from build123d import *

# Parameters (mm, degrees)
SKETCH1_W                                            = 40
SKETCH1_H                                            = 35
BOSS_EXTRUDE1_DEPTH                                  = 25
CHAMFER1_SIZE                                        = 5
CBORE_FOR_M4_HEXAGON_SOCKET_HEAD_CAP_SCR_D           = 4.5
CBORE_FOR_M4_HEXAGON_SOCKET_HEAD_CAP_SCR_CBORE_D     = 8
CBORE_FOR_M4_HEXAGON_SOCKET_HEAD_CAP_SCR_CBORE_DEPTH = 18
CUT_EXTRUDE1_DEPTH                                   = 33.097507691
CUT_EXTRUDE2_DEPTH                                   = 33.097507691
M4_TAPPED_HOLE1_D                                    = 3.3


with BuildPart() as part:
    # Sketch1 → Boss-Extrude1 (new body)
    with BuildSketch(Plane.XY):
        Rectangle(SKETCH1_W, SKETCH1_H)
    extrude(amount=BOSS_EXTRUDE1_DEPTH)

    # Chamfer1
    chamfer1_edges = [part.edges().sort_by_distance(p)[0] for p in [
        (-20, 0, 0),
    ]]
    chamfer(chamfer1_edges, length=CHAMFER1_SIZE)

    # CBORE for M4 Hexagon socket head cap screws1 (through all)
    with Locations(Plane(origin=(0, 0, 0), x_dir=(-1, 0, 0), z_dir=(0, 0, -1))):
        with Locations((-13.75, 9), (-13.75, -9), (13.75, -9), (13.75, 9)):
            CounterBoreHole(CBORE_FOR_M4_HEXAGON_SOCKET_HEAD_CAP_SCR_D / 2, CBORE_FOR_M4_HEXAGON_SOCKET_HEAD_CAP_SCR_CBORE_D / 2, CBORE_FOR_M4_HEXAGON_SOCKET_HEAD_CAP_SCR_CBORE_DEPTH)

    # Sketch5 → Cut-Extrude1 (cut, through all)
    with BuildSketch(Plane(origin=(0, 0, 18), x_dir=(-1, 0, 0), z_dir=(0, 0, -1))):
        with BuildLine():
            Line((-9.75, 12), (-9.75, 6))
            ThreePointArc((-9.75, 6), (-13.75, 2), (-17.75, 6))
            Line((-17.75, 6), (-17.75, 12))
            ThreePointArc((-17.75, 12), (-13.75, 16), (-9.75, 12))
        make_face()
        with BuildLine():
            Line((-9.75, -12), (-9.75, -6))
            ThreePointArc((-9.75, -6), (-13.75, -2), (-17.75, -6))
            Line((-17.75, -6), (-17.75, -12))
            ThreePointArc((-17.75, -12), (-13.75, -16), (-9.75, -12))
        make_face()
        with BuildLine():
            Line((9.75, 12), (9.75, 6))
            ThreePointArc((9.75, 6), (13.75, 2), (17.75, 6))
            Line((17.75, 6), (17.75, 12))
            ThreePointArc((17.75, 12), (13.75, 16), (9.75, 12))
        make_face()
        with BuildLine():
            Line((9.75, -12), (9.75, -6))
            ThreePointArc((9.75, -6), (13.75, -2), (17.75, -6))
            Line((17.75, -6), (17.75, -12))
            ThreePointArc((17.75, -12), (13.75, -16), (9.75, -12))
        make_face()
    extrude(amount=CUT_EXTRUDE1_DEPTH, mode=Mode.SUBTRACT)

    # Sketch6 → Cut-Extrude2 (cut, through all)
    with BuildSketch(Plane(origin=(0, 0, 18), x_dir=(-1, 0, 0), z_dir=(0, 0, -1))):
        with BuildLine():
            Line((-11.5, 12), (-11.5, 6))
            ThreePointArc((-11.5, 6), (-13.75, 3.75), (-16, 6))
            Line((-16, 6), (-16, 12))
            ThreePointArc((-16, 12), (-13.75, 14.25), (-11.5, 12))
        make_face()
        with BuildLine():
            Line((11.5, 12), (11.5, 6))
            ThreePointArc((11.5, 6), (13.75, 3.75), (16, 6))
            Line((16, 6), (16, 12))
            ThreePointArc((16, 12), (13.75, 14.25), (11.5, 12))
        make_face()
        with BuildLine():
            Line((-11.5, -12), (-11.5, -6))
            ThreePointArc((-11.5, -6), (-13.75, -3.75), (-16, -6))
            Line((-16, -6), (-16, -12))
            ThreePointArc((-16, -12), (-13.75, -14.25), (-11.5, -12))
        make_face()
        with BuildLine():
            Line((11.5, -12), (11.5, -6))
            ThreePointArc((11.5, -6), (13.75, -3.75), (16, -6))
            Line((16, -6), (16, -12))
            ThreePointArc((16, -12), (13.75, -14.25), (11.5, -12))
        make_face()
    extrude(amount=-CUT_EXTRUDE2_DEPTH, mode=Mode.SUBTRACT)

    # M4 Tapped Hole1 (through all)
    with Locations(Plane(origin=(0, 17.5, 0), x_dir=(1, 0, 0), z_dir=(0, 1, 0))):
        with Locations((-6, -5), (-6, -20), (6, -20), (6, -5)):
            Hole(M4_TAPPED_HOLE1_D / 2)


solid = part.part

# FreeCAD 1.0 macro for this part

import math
import FreeCAD as App
import Part
import Sketcher
from FreeCAD import Vector
Q = App.Units.Quantity


def edges_at(feature, points):
    """Names of the edges that pass closest to the given points."""
    edges = feature.Shape.Edges
    near = lambda p: min(range(len(edges)), key=lambda i: edges[i].distToShape(Part.Vertex(*p))[0])
    return sorted({f"Edge{near(p) + 1}" for p in points})

doc = App.newDocument("Part")
body = doc.addObject("PartDesign::Body", "Body")

# Sketch on XY plane
sketch1 = body.newObject("Sketcher::SketchObject", "Sketch")
sketch1.AttachmentSupport = (doc.getObject("XY_Plane"), [""])
sketch1.MapMode = "FlatFace"
sketch1.addGeometry([
    Part.LineSegment(Vector(-20, 18, 0), Vector(-20, -18, 0)),
    Part.LineSegment(Vector(-20, -18, 0), Vector(20, -18, 0)),
    Part.LineSegment(Vector(20, -18, 0), Vector(20, 18, 0)),
    Part.LineSegment(Vector(20, 18, 0), Vector(-20, 18, 0)),
], False)
sketch1.addConstraint([
    Sketcher.Constraint("Coincident", 0, 2, 1, 1),
    Sketcher.Constraint("Coincident", 1, 2, 2, 1),
    Sketcher.Constraint("Coincident", 2, 2, 3, 1),
    Sketcher.Constraint("Coincident", 3, 2, 0, 1),
    Sketcher.Constraint("Vertical", 0),
    Sketcher.Constraint("Horizontal", 1),
    Sketcher.Constraint("Vertical", 2),
    Sketcher.Constraint("Horizontal", 3),
    Sketcher.Constraint("Symmetric", 0, 2, 2, 2, -1, 1),
    Sketcher.Constraint("DistanceX", 1, 1, 1, 2, Q("40 mm")),
    Sketcher.Constraint("DistanceY", 0, 2, 0, 1, Q("35 mm")),
])
pad1 = body.newObject("PartDesign::Pad", "Pad")
pad1.Profile = sketch1
pad1.Length = 25
doc.recompute()

chamfer = body.newObject("PartDesign::Chamfer", "Chamfer")
chamfer.Base = (pad1, edges_at(pad1, [(-20, 0, 0)]))
chamfer.Size = 5

# Sketch on XY plane
sketch2 = body.newObject("Sketcher::SketchObject", "Sketch001")
sketch2.AttachmentSupport = (doc.getObject("XY_Plane"), [""])
sketch2.MapMode = "FlatFace"
sketch2.addGeometry([
    Part.Circle(Vector(13.8, 9, 0), Vector(0, 0, 1), 2.2),
    Part.Circle(Vector(13.8, -9, 0), Vector(0, 0, 1), 2.2),
    Part.Circle(Vector(-13.8, -9, 0), Vector(0, 0, 1), 2.2),
    Part.Circle(Vector(-13.8, 9, 0), Vector(0, 0, 1), 2.2),
], False)
sketch2.addConstraint([
    Sketcher.Constraint("Equal", 0, 1),
    Sketcher.Constraint("Equal", 1, 2),
    Sketcher.Constraint("Equal", 2, 3),
    Sketcher.Constraint("Symmetric", 0, 3, 2, 3, -1, 1),
    Sketcher.Constraint("Symmetric", 1, 3, 3, 3, -1, 1),
    Sketcher.Constraint("Symmetric", 1, 3, 2, 3, -2),
    Sketcher.Constraint("Diameter", 0, Q("4.5 mm")),
    Sketcher.Constraint("DistanceY", -1, 1, 0, 3, Q("9 mm")),
    Sketcher.Constraint("DistanceX", 2, 3, 1, 3, Q("27.5 mm")),
])
doc.recompute()
hole = body.newObject("PartDesign::Hole", "Hole")
hole.Profile = sketch2
hole.ThreadType = "None"
hole.Diameter = 4.5
hole.DepthType = "ThroughAll"
hole.HoleCutType = "Counterbore"
hole.HoleCutDiameter = 8
hole.HoleCutDepth = 18
hole.Reversed = True

# Sketch on XY plane
sketch3 = body.newObject("Sketcher::SketchObject", "Sketch002")
sketch3.AttachmentSupport = (doc.getObject("XY_Plane"), [""])
sketch3.MapMode = "FlatFace"
sketch3.AttachmentOffset = App.Placement(Vector(0, 0, 18), App.Rotation())
sketch3.addGeometry([
    Part.LineSegment(Vector(9.8, 6, 0), Vector(9.8, 12, 0)),  # 0
    Part.ArcOfCircle(Part.Circle(Vector(13.8, 12, 0), Vector(0, 0, 1), 4), math.radians(0), math.radians(180)),  # 1
    Part.LineSegment(Vector(17.8, 12, 0), Vector(17.8, 6, 0)),  # 2
    Part.ArcOfCircle(Part.Circle(Vector(13.8, 6, 0), Vector(0, 0, 1), 4), math.radians(180), math.radians(360)),  # 3
    Part.LineSegment(Vector(9.8, -12, 0), Vector(9.8, -6, 0)),  # 4
    Part.ArcOfCircle(Part.Circle(Vector(13.8, -6, 0), Vector(0, 0, 1), 4), math.radians(0), math.radians(180)),  # 5
    Part.LineSegment(Vector(17.8, -6, 0), Vector(17.8, -12, 0)),  # 6
    Part.ArcOfCircle(Part.Circle(Vector(13.8, -12, 0), Vector(0, 0, 1), 4), math.radians(180), math.radians(360)),  # 7
    Part.LineSegment(Vector(-9.8, 12, 0), Vector(-9.8, 6, 0)),  # 8
    Part.ArcOfCircle(Part.Circle(Vector(-13.8, 6, 0), Vector(0, 0, 1), 4), math.radians(180), math.radians(360)),  # 9
    Part.LineSegment(Vector(-17.8, 6, 0), Vector(-17.8, 12, 0)),  # 10
    Part.ArcOfCircle(Part.Circle(Vector(-13.8, 12, 0), Vector(0, 0, 1), 4), math.radians(0), math.radians(180)),  # 11
    Part.LineSegment(Vector(-9.8, -6, 0), Vector(-9.8, -12, 0)),  # 12
    Part.ArcOfCircle(Part.Circle(Vector(-13.8, -12, 0), Vector(0, 0, 1), 4), math.radians(180), math.radians(360)),  # 13
    Part.LineSegment(Vector(-17.8, -12, 0), Vector(-17.8, -6, 0)),  # 14
    Part.ArcOfCircle(Part.Circle(Vector(-13.8, -6, 0), Vector(0, 0, 1), 4), math.radians(0), math.radians(180)),  # 15
], False)
sketch3.addConstraint([
    Sketcher.Constraint("Tangent", 0, 2, 1, 2),
    Sketcher.Constraint("Tangent", 1, 1, 2, 1),
    Sketcher.Constraint("Tangent", 2, 2, 3, 2),
    Sketcher.Constraint("Tangent", 3, 1, 0, 1),
    Sketcher.Constraint("Tangent", 4, 2, 5, 2),
    Sketcher.Constraint("Tangent", 5, 1, 6, 1),
    Sketcher.Constraint("Tangent", 6, 2, 7, 2),
    Sketcher.Constraint("Tangent", 7, 1, 4, 1),
    Sketcher.Constraint("Tangent", 8, 2, 9, 2),
    Sketcher.Constraint("Tangent", 9, 1, 10, 1),
    Sketcher.Constraint("Tangent", 10, 2, 11, 2),
    Sketcher.Constraint("Tangent", 11, 1, 8, 1),
    Sketcher.Constraint("Tangent", 12, 2, 13, 2),
    Sketcher.Constraint("Tangent", 13, 1, 14, 1),
    Sketcher.Constraint("Tangent", 14, 2, 15, 2),
    Sketcher.Constraint("Tangent", 15, 1, 12, 1),
    Sketcher.Constraint("Vertical", 0),
    Sketcher.Constraint("Vertical", 2),
    Sketcher.Constraint("Vertical", 4),
    Sketcher.Constraint("Vertical", 6),
    Sketcher.Constraint("Vertical", 8),
    Sketcher.Constraint("Vertical", 10),
    Sketcher.Constraint("Vertical", 12),
    Sketcher.Constraint("Vertical", 14),
    Sketcher.Constraint("Equal", 3, 5),
    Sketcher.Constraint("Equal", 7, 9),
    Sketcher.Constraint("Equal", 11, 13),
    Sketcher.Constraint("Symmetric", 5, 3, 9, 3, -1, 1),
    Sketcher.Constraint("Symmetric", 1, 3, 13, 3, -1, 1),
    Sketcher.Constraint("Symmetric", 3, 3, 9, 3, -2),
    Sketcher.Constraint("Horizontal", 1, 3, 11, 3),
    Sketcher.Constraint("Horizontal", 7, 3, 13, 3),
    Sketcher.Constraint("Horizontal", 5, 3, 15, 3),
    Sketcher.Constraint("Radius", 1, Q("4 mm")),
    Sketcher.Constraint("DistanceY", 0, 1, 0, 2, Q("6 mm")),
    Sketcher.Constraint("DistanceY", -1, 1, 1, 3, Q("12 mm")),
    Sketcher.Constraint("DistanceX", 9, 3, 3, 3, Q("27.5 mm")),
])
pocket1 = body.newObject("PartDesign::Pocket", "Pocket")
pocket1.Profile = sketch3
pocket1.Type = "ThroughAll"

# Sketch on XY plane
sketch4 = body.newObject("Sketcher::SketchObject", "Sketch003")
sketch4.AttachmentSupport = (doc.getObject("XY_Plane"), [""])
sketch4.MapMode = "FlatFace"
sketch4.AttachmentOffset = App.Placement(Vector(0, 0, 18), App.Rotation())
sketch4.addGeometry([
    Part.LineSegment(Vector(11.5, 6, 0), Vector(11.5, 12, 0)),  # 0
    Part.ArcOfCircle(Part.Circle(Vector(13.8, 12, 0), Vector(0, 0, 1), 2.2), math.radians(0), math.radians(180)),  # 1
    Part.LineSegment(Vector(16, 12, 0), Vector(16, 6, 0)),  # 2
    Part.ArcOfCircle(Part.Circle(Vector(13.8, 6, 0), Vector(0, 0, 1), 2.2), math.radians(180), math.radians(360)),  # 3
    Part.LineSegment(Vector(-11.5, 12, 0), Vector(-11.5, 6, 0)),  # 4
    Part.ArcOfCircle(Part.Circle(Vector(-13.8, 6, 0), Vector(0, 0, 1), 2.2), math.radians(180), math.radians(360)),  # 5
    Part.LineSegment(Vector(-16, 6, 0), Vector(-16, 12, 0)),  # 6
    Part.ArcOfCircle(Part.Circle(Vector(-13.8, 12, 0), Vector(0, 0, 1), 2.2), math.radians(0), math.radians(180)),  # 7
    Part.LineSegment(Vector(11.5, -12, 0), Vector(11.5, -6, 0)),  # 8
    Part.ArcOfCircle(Part.Circle(Vector(13.8, -6, 0), Vector(0, 0, 1), 2.2), math.radians(0), math.radians(180)),  # 9
    Part.LineSegment(Vector(16, -6, 0), Vector(16, -12, 0)),  # 10
    Part.ArcOfCircle(Part.Circle(Vector(13.8, -12, 0), Vector(0, 0, 1), 2.2), math.radians(180), math.radians(360)),  # 11
    Part.LineSegment(Vector(-11.5, -6, 0), Vector(-11.5, -12, 0)),  # 12
    Part.ArcOfCircle(Part.Circle(Vector(-13.8, -12, 0), Vector(0, 0, 1), 2.2), math.radians(180), math.radians(360)),  # 13
    Part.LineSegment(Vector(-16, -12, 0), Vector(-16, -6, 0)),  # 14
    Part.ArcOfCircle(Part.Circle(Vector(-13.8, -6, 0), Vector(0, 0, 1), 2.2), math.radians(0), math.radians(180)),  # 15
], False)
sketch4.addConstraint([
    Sketcher.Constraint("Tangent", 0, 2, 1, 2),
    Sketcher.Constraint("Tangent", 1, 1, 2, 1),
    Sketcher.Constraint("Tangent", 2, 2, 3, 2),
    Sketcher.Constraint("Tangent", 3, 1, 0, 1),
    Sketcher.Constraint("Tangent", 4, 2, 5, 2),
    Sketcher.Constraint("Tangent", 5, 1, 6, 1),
    Sketcher.Constraint("Tangent", 6, 2, 7, 2),
    Sketcher.Constraint("Tangent", 7, 1, 4, 1),
    Sketcher.Constraint("Tangent", 8, 2, 9, 2),
    Sketcher.Constraint("Tangent", 9, 1, 10, 1),
    Sketcher.Constraint("Tangent", 10, 2, 11, 2),
    Sketcher.Constraint("Tangent", 11, 1, 8, 1),
    Sketcher.Constraint("Tangent", 12, 2, 13, 2),
    Sketcher.Constraint("Tangent", 13, 1, 14, 1),
    Sketcher.Constraint("Tangent", 14, 2, 15, 2),
    Sketcher.Constraint("Tangent", 15, 1, 12, 1),
    Sketcher.Constraint("Vertical", 0),
    Sketcher.Constraint("Vertical", 2),
    Sketcher.Constraint("Vertical", 4),
    Sketcher.Constraint("Vertical", 6),
    Sketcher.Constraint("Vertical", 8),
    Sketcher.Constraint("Vertical", 10),
    Sketcher.Constraint("Vertical", 12),
    Sketcher.Constraint("Vertical", 14),
    Sketcher.Constraint("Equal", 3, 5),
    Sketcher.Constraint("Equal", 7, 9),
    Sketcher.Constraint("Equal", 11, 13),
    Sketcher.Constraint("Symmetric", 5, 3, 9, 3, -1, 1),
    Sketcher.Constraint("Symmetric", 1, 3, 13, 3, -1, 1),
    Sketcher.Constraint("Symmetric", 3, 3, 5, 3, -2),
    Sketcher.Constraint("Horizontal", 1, 3, 7, 3),
    Sketcher.Constraint("Horizontal", 11, 3, 13, 3),
    Sketcher.Constraint("Horizontal", 9, 3, 15, 3),
    Sketcher.Constraint("DistanceY", 0, 1, 0, 2, Q("6 mm")),
    Sketcher.Constraint("Radius", 1, Q("2.25 mm")),
    Sketcher.Constraint("DistanceY", -1, 1, 1, 3, Q("12 mm")),
    Sketcher.Constraint("DistanceX", -1, 1, 1, 1, Q("16 mm")),
])
pocket2 = body.newObject("PartDesign::Pocket", "Pocket001")
pocket2.Profile = sketch4
pocket2.Type = "ThroughAll"
pocket2.Reversed = True

# Sketch on XZ plane
sketch5 = body.newObject("Sketcher::SketchObject", "Sketch004")
sketch5.AttachmentSupport = (doc.getObject("XZ_Plane"), [""])
sketch5.MapMode = "FlatFace"
sketch5.AttachmentOffset = App.Placement(Vector(0, 0, -17.5), App.Rotation())
sketch5.addGeometry([
    Part.Circle(Vector(-6, 5, 0), Vector(0, 0, 1), 1.6),
    Part.Circle(Vector(-6, 20, 0), Vector(0, 0, 1), 1.6),
    Part.Circle(Vector(6, 20, 0), Vector(0, 0, 1), 1.6),
    Part.Circle(Vector(6, 5, 0), Vector(0, 0, 1), 1.6),
], False)
sketch5.addConstraint([
    Sketcher.Constraint("Equal", 0, 1),
    Sketcher.Constraint("Equal", 1, 2),
    Sketcher.Constraint("Equal", 2, 3),
    Sketcher.Constraint("Symmetric", 1, 3, 2, 3, -2),
    Sketcher.Constraint("Symmetric", 0, 3, 3, 3, -2),
    Sketcher.Constraint("Vertical", 0, 3, 1, 3),
    Sketcher.Constraint("Diameter", 0, Q("3.3 mm")),
    Sketcher.Constraint("DistanceX", 0, 3, -1, 1, Q("6 mm")),
    Sketcher.Constraint("DistanceY", -1, 1, 0, 3, Q("5 mm")),
    Sketcher.Constraint("DistanceY", -1, 1, 1, 3, Q("20 mm")),
])
doc.recompute()
hole2 = body.newObject("PartDesign::Hole", "Hole001")
hole2.Profile = sketch5
hole2.ThreadType = "None"
hole2.Diameter = 3.3
hole2.DepthType = "ThroughAll"
hole2.Reversed = True

doc.recompute()
